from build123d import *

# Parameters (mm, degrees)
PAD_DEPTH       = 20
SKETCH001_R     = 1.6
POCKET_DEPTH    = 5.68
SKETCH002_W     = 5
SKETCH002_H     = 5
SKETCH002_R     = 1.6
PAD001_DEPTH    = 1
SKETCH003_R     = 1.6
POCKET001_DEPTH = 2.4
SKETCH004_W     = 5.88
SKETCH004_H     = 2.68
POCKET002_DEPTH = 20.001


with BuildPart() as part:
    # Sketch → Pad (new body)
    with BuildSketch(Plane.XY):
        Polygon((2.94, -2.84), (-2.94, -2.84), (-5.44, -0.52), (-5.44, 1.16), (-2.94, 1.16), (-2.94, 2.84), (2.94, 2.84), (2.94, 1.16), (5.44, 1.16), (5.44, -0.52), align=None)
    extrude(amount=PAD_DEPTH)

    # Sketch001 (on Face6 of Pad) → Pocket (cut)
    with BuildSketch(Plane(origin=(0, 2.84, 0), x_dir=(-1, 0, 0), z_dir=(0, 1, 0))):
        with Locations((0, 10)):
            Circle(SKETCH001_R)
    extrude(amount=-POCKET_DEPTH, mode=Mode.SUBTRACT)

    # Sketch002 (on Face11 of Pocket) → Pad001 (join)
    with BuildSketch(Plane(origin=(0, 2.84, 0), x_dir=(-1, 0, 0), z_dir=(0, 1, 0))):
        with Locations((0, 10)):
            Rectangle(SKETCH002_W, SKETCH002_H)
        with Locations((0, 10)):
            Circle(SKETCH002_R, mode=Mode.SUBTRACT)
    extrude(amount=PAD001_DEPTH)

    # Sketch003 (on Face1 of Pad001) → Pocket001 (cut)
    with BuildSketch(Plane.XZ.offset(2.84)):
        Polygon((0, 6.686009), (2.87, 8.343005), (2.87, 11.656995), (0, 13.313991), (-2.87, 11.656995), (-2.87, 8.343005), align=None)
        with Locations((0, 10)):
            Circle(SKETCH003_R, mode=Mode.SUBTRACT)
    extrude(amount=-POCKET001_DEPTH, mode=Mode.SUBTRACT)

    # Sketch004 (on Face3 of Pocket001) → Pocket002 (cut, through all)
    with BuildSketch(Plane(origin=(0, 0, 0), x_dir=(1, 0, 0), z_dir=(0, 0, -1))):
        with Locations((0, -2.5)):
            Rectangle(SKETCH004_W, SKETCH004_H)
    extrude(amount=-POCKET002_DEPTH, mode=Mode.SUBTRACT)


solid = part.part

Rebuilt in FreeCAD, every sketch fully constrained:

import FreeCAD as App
import Part
import Sketcher

V = App.Vector
Q = App.Units.Quantity


def add_polygon(sketch, points):
    """Adds a closed chain of lines whose ends are joined by coincident constraints."""
    first, n = sketch.GeometryCount, len(points)
    for a, b in zip(points, points[1:] + points[:1]):
        sketch.addGeometry(Part.LineSegment(App.Vector(*a, 0), App.Vector(*b, 0)), False)
    for i in range(n):
        sketch.addConstraint(Sketcher.Constraint("Coincident", first + i, 2, first + (i + 1) % n, 1))

doc = App.newDocument("Part")
body = doc.addObject("PartDesign::Body", "Body")

# Sketch on XY plane
sketch1 = body.newObject("Sketcher::SketchObject", "Sketch")
sketch1.AttachmentSupport = (doc.getObject("XY_Plane"), [""])
sketch1.MapMode = "FlatFace"
add_polygon(sketch1, [(-2.9, -2.8), (2.9, -2.8), (5.4, -0.5), (5.4, 1.2), (2.9, 1.2), (2.9, 2.8), (-2.9, 2.8), (-2.9, 1.2), (-5.4, 1.2), (-5.4, -0.5)])  # lines 0-9
sketch1.addConstraint(Sketcher.Constraint("Horizontal", 0))
sketch1.addConstraint(Sketcher.Constraint("Vertical", 2))
sketch1.addConstraint(Sketcher.Constraint("Horizontal", 3))
sketch1.addConstraint(Sketcher.Constraint("Vertical", 4))
sketch1.addConstraint(Sketcher.Constraint("Horizontal", 5))
sketch1.addConstraint(Sketcher.Constraint("Vertical", 6))
sketch1.addConstraint(Sketcher.Constraint("Horizontal", 7))
sketch1.addConstraint(Sketcher.Constraint("Vertical", 8))
sketch1.addConstraint(Sketcher.Constraint("Symmetric", 0, 2, 5, 2, -1, 1))
sketch1.addConstraint(Sketcher.Constraint("Symmetric", 3, 2, 6, 2, -2))
sketch1.addConstraint(Sketcher.Constraint("Symmetric", 1, 2, 8, 2, -2))
sketch1.addConstraint(Sketcher.Constraint("Vertical", 6, 2, 9, 2))
sketch1.addConstraint(Sketcher.Constraint("Equal", 2, 4))
sketch1.addConstraint(Sketcher.Constraint("DistanceX", 3, 2, 3, 1, 2.5))
sketch1.addConstraint(Sketcher.Constraint("DistanceY", 0, 2, 2, 2, 4.0))
sketch1.addConstraint(Sketcher.Constraint("DistanceX", 0, 1, 0, 2, 5.88))
sketch1.addConstraint(Sketcher.Constraint("DistanceY", 2, 1, 2, 2, 1.68))
pad1 = body.newObject("PartDesign::Pad", "Pad")
pad1.Profile = sketch1
pad1.Length = 20

# Sketch on XZ plane
sketch2 = body.newObject("Sketcher::SketchObject", "Sketch001")
sketch2.AttachmentSupport = (doc.getObject("XZ_Plane"), [""])
sketch2.MapMode = "FlatFace"
sketch2.AttachmentOffset = App.Placement(V(0, 0, -2.84), App.Rotation())
sketch2.addGeometry(Part.Circle(V(0, 10, 0), V(0, 0, 1), 1.6), False)
sketch2.addConstraint(Sketcher.Constraint("PointOnObject", 0, 3, -2))
sketch2.addConstraint(Sketcher.Constraint("Diameter", 0, 3.2))
sketch2.addConstraint(Sketcher.Constraint("DistanceY", -1, 1, 0, 3, 10.0))
pocket1 = body.newObject("PartDesign::Pocket", "Pocket")
pocket1.Profile = sketch2
pocket1.Length = 5.68
pocket1.Reversed = True

# Sketch on XZ plane
sketch3 = body.newObject("Sketcher::SketchObject", "Sketch002")
sketch3.AttachmentSupport = (doc.getObject("XZ_Plane"), [""])
sketch3.MapMode = "FlatFace"
sketch3.AttachmentOffset = App.Placement(V(0, 0, -2.84), App.Rotation())
add_polygon(sketch3, [(2.5, 12.5), (2.5, 7.5), (-2.5, 7.5), (-2.5, 12.5)])  # lines 0-3
sketch3.addGeometry(Part.Circle(V(0, 10, 0), V(0, 0, 1), 1.6), False)  # 4
sketch3.addConstraint(Sketcher.Constraint("Vertical", 0))
sketch3.addConstraint(Sketcher.Constraint("Horizontal", 1))
sketch3.addConstraint(Sketcher.Constraint("Vertical", 2))
sketch3.addConstraint(Sketcher.Constraint("Horizontal", 3))
sketch3.addConstraint(Sketcher.Constraint("PointOnObject", 4, 3, -2))
sketch3.addConstraint(Sketcher.Constraint("Equal", 3, 0))
sketch3.addConstraint(Sketcher.Constraint("Diameter", 4, 3.2))
sketch3.addConstraint(Sketcher.Constraint("DistanceX", 1, 2, 1, 1, 5.0))
sketch3.addConstraint(Sketcher.Constraint("DistanceY", -1, 1, 4, 3, 10.0))
sketch3.addConstraint(Sketcher.Constraint("DistanceX", -1, 1, 0, 2, 2.5))
sketch3.addConstraint(Sketcher.Constraint("DistanceY", -1, 1, 0, 2, 7.5))
pad2 = body.newObject("PartDesign::Pad", "Pad001")
pad2.Profile = sketch3
pad2.Length = 1
pad2.Reversed = True

# Sketch on XZ plane
sketch4 = body.newObject("Sketcher::SketchObject", "Sketch003")
sketch4.AttachmentSupport = (doc.getObject("XZ_Plane"), [""])
sketch4.MapMode = "FlatFace"
sketch4.AttachmentOffset = App.Placement(V(0, 0, 2.84), App.Rotation())
add_polygon(sketch4, [(0, 6.7), (2.9, 8.3), (2.9, 11.7), (0, 13.3), (-2.9, 11.7), (-2.9, 8.3)])  # lines 0-5
sketch4.addGeometry(Part.Circle(V(0, 10, 0), V(0, 0, 1), 1.6), False)  # 6
sketch4.addConstraint(Sketcher.Constraint("Vertical", 1))
sketch4.addConstraint(Sketcher.Constraint("Vertical", 4))
sketch4.addConstraint(Sketcher.Constraint("Symmetric", 1, 2, 3, 2, -2))
sketch4.addConstraint(Sketcher.Constraint("PointOnObject", 6, 3, -2))
sketch4.addConstraint(Sketcher.Constraint("PointOnObject", 2, 2, -2))
sketch4.addConstraint(Sketcher.Constraint("PointOnObject", 5, 2, -2))
sketch4.addConstraint(Sketcher.Constraint("Parallel", 0, 3))
sketch4.addConstraint(Sketcher.Constraint("Parallel", 2, 5))
sketch4.addConstraint(Sketcher.Constraint("Diameter", 6, 3.2))
sketch4.addConstraint(Sketcher.Constraint("Angle", 0, Q("30.000011 deg")))
sketch4.addConstraint(Sketcher.Constraint("DistanceY", -1, 1, 6, 3, 10.0))
sketch4.addConstraint(Sketcher.Constraint("DistanceX", -1, 1, 0, 2, 2.87))
sketch4.addConstraint(Sketcher.Constraint("DistanceY", 1, 1, 1, 2, 3.31399))
sketch4.addConstraint(Sketcher.Constraint("DistanceY", -1, 1, 2, 2, 13.313991))
pocket2 = body.newObject("PartDesign::Pocket", "Pocket001")
pocket2.Profile = sketch4
pocket2.Length = 2.4

# Sketch on XY plane
sketch5 = body.newObject("Sketcher::SketchObject", "Sketch004")
sketch5.AttachmentSupport = (doc.getObject("XY_Plane"), [""])
sketch5.MapMode = "FlatFace"
add_polygon(sketch5, [(-2.9, 1.2), (-2.9, 3.8), (2.9, 3.8), (2.9, 1.2)])  # lines 0-3
sketch5.addConstraint(Sketcher.Constraint("Vertical", 0))
sketch5.addConstraint(Sketcher.Constraint("Horizontal", 1))
sketch5.addConstraint(Sketcher.Constraint("Vertical", 2))
sketch5.addConstraint(Sketcher.Constraint("Horizontal", 3))
sketch5.addConstraint(Sketcher.Constraint("DistanceX", 1, 1, 1, 2, 5.88))
sketch5.addConstraint(Sketcher.Constraint("DistanceY", 0, 1, 0, 2, 2.68))
sketch5.addConstraint(Sketcher.Constraint("DistanceX", 0, 2, -1, 1, 2.94))
sketch5.addConstraint(Sketcher.Constraint("DistanceY", -1, 1, 0, 2, 3.84))
pocket3 = body.newObject("PartDesign::Pocket", "Pocket002")
pocket3.Profile = sketch5
pocket3.Type = "ThroughAll"
pocket3.Reversed = True

doc.recompute()
